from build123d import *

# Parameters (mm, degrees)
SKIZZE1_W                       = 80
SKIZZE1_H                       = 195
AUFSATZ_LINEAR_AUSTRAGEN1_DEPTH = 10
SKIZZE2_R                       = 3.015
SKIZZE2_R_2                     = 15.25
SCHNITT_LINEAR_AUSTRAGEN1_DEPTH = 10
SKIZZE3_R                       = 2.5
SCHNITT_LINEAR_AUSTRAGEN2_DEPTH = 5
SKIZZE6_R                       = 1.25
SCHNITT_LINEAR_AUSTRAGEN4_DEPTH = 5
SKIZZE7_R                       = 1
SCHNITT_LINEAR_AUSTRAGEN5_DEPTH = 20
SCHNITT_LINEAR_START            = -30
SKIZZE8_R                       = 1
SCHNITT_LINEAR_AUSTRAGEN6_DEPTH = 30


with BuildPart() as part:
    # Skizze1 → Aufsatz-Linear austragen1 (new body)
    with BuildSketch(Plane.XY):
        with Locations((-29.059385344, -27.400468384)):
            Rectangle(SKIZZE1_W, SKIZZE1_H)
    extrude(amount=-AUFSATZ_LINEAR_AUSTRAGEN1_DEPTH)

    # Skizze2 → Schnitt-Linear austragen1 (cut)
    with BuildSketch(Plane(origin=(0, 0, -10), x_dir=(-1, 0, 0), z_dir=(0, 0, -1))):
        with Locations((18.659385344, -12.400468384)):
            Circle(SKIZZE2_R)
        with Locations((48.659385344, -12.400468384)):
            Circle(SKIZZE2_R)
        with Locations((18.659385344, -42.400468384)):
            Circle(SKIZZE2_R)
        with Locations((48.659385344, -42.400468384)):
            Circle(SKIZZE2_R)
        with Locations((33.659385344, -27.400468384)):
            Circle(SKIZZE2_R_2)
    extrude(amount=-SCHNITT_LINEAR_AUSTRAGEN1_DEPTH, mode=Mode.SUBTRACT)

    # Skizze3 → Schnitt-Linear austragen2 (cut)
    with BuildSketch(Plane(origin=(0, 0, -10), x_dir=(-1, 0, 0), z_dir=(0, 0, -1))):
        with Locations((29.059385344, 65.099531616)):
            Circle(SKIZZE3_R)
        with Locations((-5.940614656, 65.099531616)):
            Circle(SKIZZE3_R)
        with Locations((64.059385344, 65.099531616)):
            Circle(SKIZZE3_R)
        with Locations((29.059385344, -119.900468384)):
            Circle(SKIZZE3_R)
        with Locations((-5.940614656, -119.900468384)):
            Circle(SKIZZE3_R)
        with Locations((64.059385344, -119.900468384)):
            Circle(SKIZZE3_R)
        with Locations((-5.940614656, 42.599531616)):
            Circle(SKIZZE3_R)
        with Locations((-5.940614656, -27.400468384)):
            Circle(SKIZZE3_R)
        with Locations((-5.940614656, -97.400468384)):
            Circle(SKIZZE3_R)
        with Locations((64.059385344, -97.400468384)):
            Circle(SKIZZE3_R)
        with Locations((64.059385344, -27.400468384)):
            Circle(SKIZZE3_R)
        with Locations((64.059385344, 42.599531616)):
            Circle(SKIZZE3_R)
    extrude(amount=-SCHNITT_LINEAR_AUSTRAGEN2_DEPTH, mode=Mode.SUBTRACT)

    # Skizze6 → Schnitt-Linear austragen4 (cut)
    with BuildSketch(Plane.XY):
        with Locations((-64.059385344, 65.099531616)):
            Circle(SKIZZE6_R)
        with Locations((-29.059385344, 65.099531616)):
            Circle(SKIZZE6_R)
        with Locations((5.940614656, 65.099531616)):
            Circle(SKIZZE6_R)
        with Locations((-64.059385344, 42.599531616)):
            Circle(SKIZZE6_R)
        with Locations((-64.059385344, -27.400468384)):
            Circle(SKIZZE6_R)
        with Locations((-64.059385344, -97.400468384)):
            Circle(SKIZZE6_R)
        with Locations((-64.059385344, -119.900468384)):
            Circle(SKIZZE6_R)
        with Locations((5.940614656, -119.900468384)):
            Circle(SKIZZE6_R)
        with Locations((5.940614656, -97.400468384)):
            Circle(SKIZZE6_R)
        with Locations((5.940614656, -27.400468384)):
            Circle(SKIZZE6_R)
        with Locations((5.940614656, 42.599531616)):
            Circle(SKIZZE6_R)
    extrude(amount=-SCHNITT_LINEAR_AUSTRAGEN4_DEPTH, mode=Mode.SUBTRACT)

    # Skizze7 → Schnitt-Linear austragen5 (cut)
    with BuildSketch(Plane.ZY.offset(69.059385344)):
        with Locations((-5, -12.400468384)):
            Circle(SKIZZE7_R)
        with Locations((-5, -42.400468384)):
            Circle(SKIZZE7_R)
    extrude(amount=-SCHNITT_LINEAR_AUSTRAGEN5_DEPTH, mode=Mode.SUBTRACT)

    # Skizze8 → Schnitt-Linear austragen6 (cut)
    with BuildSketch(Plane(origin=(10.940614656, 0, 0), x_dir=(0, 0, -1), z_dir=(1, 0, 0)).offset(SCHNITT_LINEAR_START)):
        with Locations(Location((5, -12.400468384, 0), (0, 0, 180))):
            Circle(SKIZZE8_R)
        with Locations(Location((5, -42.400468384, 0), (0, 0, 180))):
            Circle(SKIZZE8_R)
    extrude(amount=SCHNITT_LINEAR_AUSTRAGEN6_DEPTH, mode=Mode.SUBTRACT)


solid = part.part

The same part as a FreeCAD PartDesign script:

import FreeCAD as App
import Part
import Sketcher

doc = App.newDocument("Part")
body = doc.addObject("PartDesign::Body", "Body")

# Sketch on XY plane
sketch1 = body.newObject("Sketcher::SketchObject", "Sketch")
sketch1.AttachmentSupport = (doc.getObject("XY_Plane"), [""])
sketch1.MapMode = "FlatFace"
sketch1.addGeometry([
    Part.LineSegment(App.Vector(-69, 70, 0), App.Vector(-69, -125, 0)),
    Part.LineSegment(App.Vector(-69, -125, 0), App.Vector(11, -125, 0)),
    Part.LineSegment(App.Vector(11, -125, 0), App.Vector(11, 70, 0)),
    Part.LineSegment(App.Vector(11, 70, 0), App.Vector(-69, 70, 0)),
], False)
sketch1.addConstraint([
    Sketcher.Constraint("Coincident", 0, 2, 1, 1),
    Sketcher.Constraint("Coincident", 1, 2, 2, 1),
    Sketcher.Constraint("Coincident", 2, 2, 3, 1),
    Sketcher.Constraint("Coincident", 3, 2, 0, 1),
    Sketcher.Constraint("Vertical", 0),
    Sketcher.Constraint("Horizontal", 1),
    Sketcher.Constraint("Vertical", 2),
    Sketcher.Constraint("Horizontal", 3),
    Sketcher.Constraint("DistanceX", 1, 1, 1, 2, 80.0),
    Sketcher.Constraint("DistanceY", 0, 2, 0, 1, 195.0),
    Sketcher.Constraint("DistanceY", 0, 2, -1, 1, 124.900468),
    Sketcher.Constraint("DistanceX", 0, 2, -1, 1, 69.059385),
])
pad1 = body.newObject("PartDesign::Pad", "Pad")
pad1.Profile = sketch1
pad1.Length = 10
pad1.Reversed = True

# Sketch on XY plane
sketch2 = body.newObject("Sketcher::SketchObject", "Sketch001")
sketch2.AttachmentSupport = (doc.getObject("XY_Plane"), [""])
sketch2.MapMode = "FlatFace"
sketch2.AttachmentOffset = App.Placement(App.Vector(0, 0, -10), App.Rotation())
sketch2.addGeometry([
    Part.Circle(App.Vector(-18.7, -12.4, 0), App.Vector(0, 0, 1), 3),  # 0
    Part.Circle(App.Vector(-48.7, -12.4, 0), App.Vector(0, 0, 1), 3),  # 1
    Part.Circle(App.Vector(-18.7, -42.4, 0), App.Vector(0, 0, 1), 3),  # 2
    Part.Circle(App.Vector(-48.7, -42.4, 0), App.Vector(0, 0, 1), 3),  # 3
    Part.Circle(App.Vector(-33.7, -27.4, 0), App.Vector(0, 0, 1), 15.2),  # 4
], False)
sketch2.addConstraint([
    Sketcher.Constraint("Equal", 0, 1),
    Sketcher.Constraint("Equal", 1, 2),
    Sketcher.Constraint("Equal", 2, 3),
    Sketcher.Constraint("Horizontal", 0, 3, 1, 3),
    Sketcher.Constraint("Horizontal", 2, 3, 3, 3),
    Sketcher.Constraint("Vertical", 0, 3, 2, 3),
    Sketcher.Constraint("Vertical", 1, 3, 3, 3),
    Sketcher.Constraint("Diameter", 4, 30.5),
    Sketcher.Constraint("Diameter", 0, 6.03),
    Sketcher.Constraint("DistanceX", 1, 3, 0, 3, 30.0),
    Sketcher.Constraint("DistanceY", 2, 3, 0, 3, 30.0),
    Sketcher.Constraint("DistanceX", 4, 3, 0, 3, 15.0),
    Sketcher.Constraint("DistanceY", 4, 3, 0, 3, 15.0),
    Sketcher.Constraint("DistanceY", 0, 3, -1, 1, 12.400468),
    Sketcher.Constraint("DistanceX", 0, 3, -1, 1, 18.659385),
])
pocket1 = body.newObject("PartDesign::Pocket", "Pocket")
pocket1.Profile = sketch2
pocket1.Length = 10
pocket1.Reversed = True

# Sketch on XY plane
sketch3 = body.newObject("Sketcher::SketchObject", "Sketch002")
sketch3.AttachmentSupport = (doc.getObject("XY_Plane"), [""])
sketch3.MapMode = "FlatFace"
sketch3.AttachmentOffset = App.Placement(App.Vector(0, 0, -10), App.Rotation())
sketch3.addGeometry([
    Part.Circle(App.Vector(-29.1, 65.1, 0), App.Vector(0, 0, 1), 2.5),  # 0
    Part.Circle(App.Vector(5.9, 65.1, 0), App.Vector(0, 0, 1), 2.5),  # 1
    Part.Circle(App.Vector(-64.1, 65.1, 0), App.Vector(0, 0, 1), 2.5),  # 2
    Part.Circle(App.Vector(-29.1, -119.9, 0), App.Vector(0, 0, 1), 2.5),  # 3
    Part.Circle(App.Vector(5.9, -119.9, 0), App.Vector(0, 0, 1), 2.5),  # 4
    Part.Circle(App.Vector(-64.1, -119.9, 0), App.Vector(0, 0, 1), 2.5),  # 5
    Part.Circle(App.Vector(5.9, 42.6, 0), App.Vector(0, 0, 1), 2.5),  # 6
    Part.Circle(App.Vector(5.9, -27.4, 0), App.Vector(0, 0, 1), 2.5),  # 7
    Part.Circle(App.Vector(5.9, -97.4, 0), App.Vector(0, 0, 1), 2.5),  # 8
    Part.Circle(App.Vector(-64.1, -97.4, 0), App.Vector(0, 0, 1), 2.5),  # 9
    Part.Circle(App.Vector(-64.1, -27.4, 0), App.Vector(0, 0, 1), 2.5),  # 10
    Part.Circle(App.Vector(-64.1, 42.6, 0), App.Vector(0, 0, 1), 2.5),  # 11
], False)
sketch3.addConstraint([
    Sketcher.Constraint("Equal", 0, 1),
    Sketcher.Constraint("Equal", 1, 2),
    Sketcher.Constraint("Equal", 2, 3),
    Sketcher.Constraint("Equal", 3, 4),
    Sketcher.Constraint("Equal", 4, 5),
    Sketcher.Constraint("Equal", 5, 6),
    Sketcher.Constraint("Equal", 6, 7),
    Sketcher.Constraint("Equal", 7, 8),
    Sketcher.Constraint("Equal", 8, 9),
    Sketcher.Constraint("Equal", 9, 10),
    Sketcher.Constraint("Equal", 10, 11),
    Sketcher.Constraint("Horizontal", 0, 3, 1, 3),
    Sketcher.Constraint("Horizontal", 1, 3, 2, 3),
    Sketcher.Constraint("Horizontal", 3, 3, 4, 3),
    Sketcher.Constraint("Horizontal", 4, 3, 5, 3),
    Sketcher.Constraint("Horizontal", 8, 3, 9, 3),
    Sketcher.Constraint("Horizontal", 7, 3, 10, 3),
    Sketcher.Constraint("Horizontal", 6, 3, 11, 3),
    Sketcher.Constraint("Vertical", 0, 3, 3, 3),
    Sketcher.Constraint("Vertical", 1, 3, 4, 3),
    Sketcher.Constraint("Vertical", 2, 3, 5, 3),
    Sketcher.Constraint("Vertical", 4, 3, 6, 3),
    Sketcher.Constraint("Vertical", 6, 3, 7, 3),
    Sketcher.Constraint("Vertical", 7, 3, 8, 3),
    Sketcher.Constraint("Vertical", 5, 3, 9, 3),
    Sketcher.Constraint("Vertical", 9, 3, 10, 3),
    Sketcher.Constraint("Vertical", 10, 3, 11, 3),
    Sketcher.Constraint("Diameter", 0, 5.0),
    Sketcher.Constraint("DistanceX", 0, 3, 1, 3, 35.0),
    Sketcher.Constraint("DistanceX", 2, 3, 0, 3, 35.0),
    Sketcher.Constraint("DistanceY", 3, 3, 0, 3, 185.0),
    Sketcher.Constraint("DistanceY", 7, 3, 6, 3, 70.0),
    Sketcher.Constraint("DistanceY", 8, 3, 7, 3, 70.0),
    Sketcher.Constraint("DistanceY", 6, 3, 1, 3, 22.5),
    Sketcher.Constraint("DistanceY", -1, 1, 0, 3, 65.099532),
    Sketcher.Constraint("DistanceX", 0, 3, -1, 1, 29.059385),
])
pocket2 = body.newObject("PartDesign::Pocket", "Pocket001")
pocket2.Profile = sketch3
pocket2.Length = 5
pocket2.Reversed = True

# Sketch on XY plane
sketch4 = body.newObject("Sketcher::SketchObject", "Sketch003")
sketch4.AttachmentSupport = (doc.getObject("XY_Plane"), [""])
sketch4.MapMode = "FlatFace"
sketch4.addGeometry([
    Part.Circle(App.Vector(-64.1, 65.1, 0), App.Vector(0, 0, 1), 1.2),  # 0
    Part.Circle(App.Vector(-29.1, 65.1, 0), App.Vector(0, 0, 1), 1.2),  # 1
    Part.Circle(App.Vector(5.9, 65.1, 0), App.Vector(0, 0, 1), 1.2),  # 2
    Part.Circle(App.Vector(-64.1, 42.6, 0), App.Vector(0, 0, 1), 1.2),  # 3
    Part.Circle(App.Vector(-64.1, -27.4, 0), App.Vector(0, 0, 1), 1.2),  # 4
    Part.Circle(App.Vector(-64.1, -97.4, 0), App.Vector(0, 0, 1), 1.2),  # 5
    Part.Circle(App.Vector(-64.1, -119.9, 0), App.Vector(0, 0, 1), 1.2),  # 6
    Part.Circle(App.Vector(5.9, -119.9, 0), App.Vector(0, 0, 1), 1.2),  # 7
    Part.Circle(App.Vector(5.9, -97.4, 0), App.Vector(0, 0, 1), 1.2),  # 8
    Part.Circle(App.Vector(5.9, -27.4, 0), App.Vector(0, 0, 1), 1.2),  # 9
    Part.Circle(App.Vector(5.9, 42.6, 0), App.Vector(0, 0, 1), 1.2),  # 10
], False)
sketch4.addConstraint([
    Sketcher.Constraint("Equal", 0, 1),
    Sketcher.Constraint("Equal", 1, 2),
    Sketcher.Constraint("Equal", 2, 3),
    Sketcher.Constraint("Equal", 3, 4),
    Sketcher.Constraint("Equal", 4, 5),
    Sketcher.Constraint("Equal", 5, 6),
    Sketcher.Constraint("Equal", 6, 7),
    Sketcher.Constraint("Equal", 7, 8),
    Sketcher.Constraint("Equal", 8, 9),
    Sketcher.Constraint("Equal", 9, 10),
    Sketcher.Constraint("Horizontal", 0, 3, 1, 3),
    Sketcher.Constraint("Horizontal", 1, 3, 2, 3),
    Sketcher.Constraint("Horizontal", 6, 3, 7, 3),
    Sketcher.Constraint("Horizontal", 5, 3, 8, 3),
    Sketcher.Constraint("Horizontal", 4, 3, 9, 3),
    Sketcher.Constraint("Horizontal", 3, 3, 10, 3),
    Sketcher.Constraint("Vertical", 0, 3, 3, 3),
    Sketcher.Constraint("Vertical", 3, 3, 4, 3),
    Sketcher.Constraint("Vertical", 4, 3, 5, 3),
    Sketcher.Constraint("Vertical", 5, 3, 6, 3),
    Sketcher.Constraint("Vertical", 2, 3, 7, 3),
    Sketcher.Constraint("Vertical", 7, 3, 8, 3),
    Sketcher.Constraint("Vertical", 8, 3, 9, 3),
    Sketcher.Constraint("Vertical", 9, 3, 10, 3),
    Sketcher.Constraint("Diameter", 0, 2.5),
    Sketcher.Constraint("DistanceX", 0, 3, 1, 3, 35.0),
    Sketcher.Constraint("DistanceX", 1, 3, 2, 3, 35.0),
    Sketcher.Constraint("DistanceY", 4, 3, 3, 3, 70.0),
    Sketcher.Constraint("DistanceY", 5, 3, 4, 3, 70.0),
    Sketcher.Constraint("DistanceY", 6, 3, 0, 3, 185.0),
    Sketcher.Constraint("DistanceY", 3, 3, 0, 3, 22.5),
    Sketcher.Constraint("DistanceY", -1, 1, 0, 3, 65.099532),
    Sketcher.Constraint("DistanceX", 0, 3, -1, 1, 64.059385),
])
pocket3 = body.newObject("PartDesign::Pocket", "Pocket002")
pocket3.Profile = sketch4
pocket3.Length = 5

# Sketch on YZ plane
sketch5 = body.newObject("Sketcher::SketchObject", "Sketch004")
sketch5.AttachmentSupport = (doc.getObject("YZ_Plane"), [""])
sketch5.MapMode = "FlatFace"
sketch5.AttachmentOffset = App.Placement(App.Vector(0, 0, -69.059385), App.Rotation())
sketch5.addGeometry([
    Part.Circle(App.Vector(-12.4, -5, 0), App.Vector(0, 0, 1), 1),
    Part.Circle(App.Vector(-42.4, -5, 0), App.Vector(0, 0, 1), 1),
], False)
sketch5.addConstraint([
    Sketcher.Constraint("Equal", 0, 1),
    Sketcher.Constraint("Horizontal", 0, 3, 1, 3),
    Sketcher.Constraint("Diameter", 0, 2.0),
    Sketcher.Constraint("DistanceY", 0, 3, -1, 1, 5.0),
    Sketcher.Constraint("DistanceX", 1, 3, 0, 3, 30.0),
    Sketcher.Constraint("DistanceX", 0, 3, -1, 1, 12.400468),
])
pocket4 = body.newObject("PartDesign::Pocket", "Pocket003")
pocket4.Profile = sketch5
pocket4.Length = 20
pocket4.Reversed = True

# Sketch on YZ plane
sketch6 = body.newObject("Sketcher::SketchObject", "Sketch005")
sketch6.AttachmentSupport = (doc.getObject("YZ_Plane"), [""])
sketch6.MapMode = "FlatFace"
sketch6.AttachmentOffset = App.Placement(App.Vector(0, 0, -19.059385), App.Rotation())
sketch6.addGeometry([
    Part.Circle(App.Vector(-12.4, -5, 0), App.Vector(0, 0, 1), 1),
    Part.Circle(App.Vector(-42.4, -5, 0), App.Vector(0, 0, 1), 1),
], False)
sketch6.addConstraint([
    Sketcher.Constraint("Equal", 0, 1),
    Sketcher.Constraint("Horizontal", 0, 3, 1, 3),
    Sketcher.Constraint("Diameter", 0, 2.0),
    Sketcher.Constraint("DistanceY", 0, 3, -1, 1, 5.0),
    Sketcher.Constraint("DistanceX", 1, 3, 0, 3, 30.0),
    Sketcher.Constraint("DistanceX", 0, 3, -1, 1, 12.400468),
])
pocket5 = body.newObject("PartDesign::Pocket", "Pocket004")
pocket5.Profile = sketch6
pocket5.Length = 30
pocket5.Reversed = True

doc.recompute()
